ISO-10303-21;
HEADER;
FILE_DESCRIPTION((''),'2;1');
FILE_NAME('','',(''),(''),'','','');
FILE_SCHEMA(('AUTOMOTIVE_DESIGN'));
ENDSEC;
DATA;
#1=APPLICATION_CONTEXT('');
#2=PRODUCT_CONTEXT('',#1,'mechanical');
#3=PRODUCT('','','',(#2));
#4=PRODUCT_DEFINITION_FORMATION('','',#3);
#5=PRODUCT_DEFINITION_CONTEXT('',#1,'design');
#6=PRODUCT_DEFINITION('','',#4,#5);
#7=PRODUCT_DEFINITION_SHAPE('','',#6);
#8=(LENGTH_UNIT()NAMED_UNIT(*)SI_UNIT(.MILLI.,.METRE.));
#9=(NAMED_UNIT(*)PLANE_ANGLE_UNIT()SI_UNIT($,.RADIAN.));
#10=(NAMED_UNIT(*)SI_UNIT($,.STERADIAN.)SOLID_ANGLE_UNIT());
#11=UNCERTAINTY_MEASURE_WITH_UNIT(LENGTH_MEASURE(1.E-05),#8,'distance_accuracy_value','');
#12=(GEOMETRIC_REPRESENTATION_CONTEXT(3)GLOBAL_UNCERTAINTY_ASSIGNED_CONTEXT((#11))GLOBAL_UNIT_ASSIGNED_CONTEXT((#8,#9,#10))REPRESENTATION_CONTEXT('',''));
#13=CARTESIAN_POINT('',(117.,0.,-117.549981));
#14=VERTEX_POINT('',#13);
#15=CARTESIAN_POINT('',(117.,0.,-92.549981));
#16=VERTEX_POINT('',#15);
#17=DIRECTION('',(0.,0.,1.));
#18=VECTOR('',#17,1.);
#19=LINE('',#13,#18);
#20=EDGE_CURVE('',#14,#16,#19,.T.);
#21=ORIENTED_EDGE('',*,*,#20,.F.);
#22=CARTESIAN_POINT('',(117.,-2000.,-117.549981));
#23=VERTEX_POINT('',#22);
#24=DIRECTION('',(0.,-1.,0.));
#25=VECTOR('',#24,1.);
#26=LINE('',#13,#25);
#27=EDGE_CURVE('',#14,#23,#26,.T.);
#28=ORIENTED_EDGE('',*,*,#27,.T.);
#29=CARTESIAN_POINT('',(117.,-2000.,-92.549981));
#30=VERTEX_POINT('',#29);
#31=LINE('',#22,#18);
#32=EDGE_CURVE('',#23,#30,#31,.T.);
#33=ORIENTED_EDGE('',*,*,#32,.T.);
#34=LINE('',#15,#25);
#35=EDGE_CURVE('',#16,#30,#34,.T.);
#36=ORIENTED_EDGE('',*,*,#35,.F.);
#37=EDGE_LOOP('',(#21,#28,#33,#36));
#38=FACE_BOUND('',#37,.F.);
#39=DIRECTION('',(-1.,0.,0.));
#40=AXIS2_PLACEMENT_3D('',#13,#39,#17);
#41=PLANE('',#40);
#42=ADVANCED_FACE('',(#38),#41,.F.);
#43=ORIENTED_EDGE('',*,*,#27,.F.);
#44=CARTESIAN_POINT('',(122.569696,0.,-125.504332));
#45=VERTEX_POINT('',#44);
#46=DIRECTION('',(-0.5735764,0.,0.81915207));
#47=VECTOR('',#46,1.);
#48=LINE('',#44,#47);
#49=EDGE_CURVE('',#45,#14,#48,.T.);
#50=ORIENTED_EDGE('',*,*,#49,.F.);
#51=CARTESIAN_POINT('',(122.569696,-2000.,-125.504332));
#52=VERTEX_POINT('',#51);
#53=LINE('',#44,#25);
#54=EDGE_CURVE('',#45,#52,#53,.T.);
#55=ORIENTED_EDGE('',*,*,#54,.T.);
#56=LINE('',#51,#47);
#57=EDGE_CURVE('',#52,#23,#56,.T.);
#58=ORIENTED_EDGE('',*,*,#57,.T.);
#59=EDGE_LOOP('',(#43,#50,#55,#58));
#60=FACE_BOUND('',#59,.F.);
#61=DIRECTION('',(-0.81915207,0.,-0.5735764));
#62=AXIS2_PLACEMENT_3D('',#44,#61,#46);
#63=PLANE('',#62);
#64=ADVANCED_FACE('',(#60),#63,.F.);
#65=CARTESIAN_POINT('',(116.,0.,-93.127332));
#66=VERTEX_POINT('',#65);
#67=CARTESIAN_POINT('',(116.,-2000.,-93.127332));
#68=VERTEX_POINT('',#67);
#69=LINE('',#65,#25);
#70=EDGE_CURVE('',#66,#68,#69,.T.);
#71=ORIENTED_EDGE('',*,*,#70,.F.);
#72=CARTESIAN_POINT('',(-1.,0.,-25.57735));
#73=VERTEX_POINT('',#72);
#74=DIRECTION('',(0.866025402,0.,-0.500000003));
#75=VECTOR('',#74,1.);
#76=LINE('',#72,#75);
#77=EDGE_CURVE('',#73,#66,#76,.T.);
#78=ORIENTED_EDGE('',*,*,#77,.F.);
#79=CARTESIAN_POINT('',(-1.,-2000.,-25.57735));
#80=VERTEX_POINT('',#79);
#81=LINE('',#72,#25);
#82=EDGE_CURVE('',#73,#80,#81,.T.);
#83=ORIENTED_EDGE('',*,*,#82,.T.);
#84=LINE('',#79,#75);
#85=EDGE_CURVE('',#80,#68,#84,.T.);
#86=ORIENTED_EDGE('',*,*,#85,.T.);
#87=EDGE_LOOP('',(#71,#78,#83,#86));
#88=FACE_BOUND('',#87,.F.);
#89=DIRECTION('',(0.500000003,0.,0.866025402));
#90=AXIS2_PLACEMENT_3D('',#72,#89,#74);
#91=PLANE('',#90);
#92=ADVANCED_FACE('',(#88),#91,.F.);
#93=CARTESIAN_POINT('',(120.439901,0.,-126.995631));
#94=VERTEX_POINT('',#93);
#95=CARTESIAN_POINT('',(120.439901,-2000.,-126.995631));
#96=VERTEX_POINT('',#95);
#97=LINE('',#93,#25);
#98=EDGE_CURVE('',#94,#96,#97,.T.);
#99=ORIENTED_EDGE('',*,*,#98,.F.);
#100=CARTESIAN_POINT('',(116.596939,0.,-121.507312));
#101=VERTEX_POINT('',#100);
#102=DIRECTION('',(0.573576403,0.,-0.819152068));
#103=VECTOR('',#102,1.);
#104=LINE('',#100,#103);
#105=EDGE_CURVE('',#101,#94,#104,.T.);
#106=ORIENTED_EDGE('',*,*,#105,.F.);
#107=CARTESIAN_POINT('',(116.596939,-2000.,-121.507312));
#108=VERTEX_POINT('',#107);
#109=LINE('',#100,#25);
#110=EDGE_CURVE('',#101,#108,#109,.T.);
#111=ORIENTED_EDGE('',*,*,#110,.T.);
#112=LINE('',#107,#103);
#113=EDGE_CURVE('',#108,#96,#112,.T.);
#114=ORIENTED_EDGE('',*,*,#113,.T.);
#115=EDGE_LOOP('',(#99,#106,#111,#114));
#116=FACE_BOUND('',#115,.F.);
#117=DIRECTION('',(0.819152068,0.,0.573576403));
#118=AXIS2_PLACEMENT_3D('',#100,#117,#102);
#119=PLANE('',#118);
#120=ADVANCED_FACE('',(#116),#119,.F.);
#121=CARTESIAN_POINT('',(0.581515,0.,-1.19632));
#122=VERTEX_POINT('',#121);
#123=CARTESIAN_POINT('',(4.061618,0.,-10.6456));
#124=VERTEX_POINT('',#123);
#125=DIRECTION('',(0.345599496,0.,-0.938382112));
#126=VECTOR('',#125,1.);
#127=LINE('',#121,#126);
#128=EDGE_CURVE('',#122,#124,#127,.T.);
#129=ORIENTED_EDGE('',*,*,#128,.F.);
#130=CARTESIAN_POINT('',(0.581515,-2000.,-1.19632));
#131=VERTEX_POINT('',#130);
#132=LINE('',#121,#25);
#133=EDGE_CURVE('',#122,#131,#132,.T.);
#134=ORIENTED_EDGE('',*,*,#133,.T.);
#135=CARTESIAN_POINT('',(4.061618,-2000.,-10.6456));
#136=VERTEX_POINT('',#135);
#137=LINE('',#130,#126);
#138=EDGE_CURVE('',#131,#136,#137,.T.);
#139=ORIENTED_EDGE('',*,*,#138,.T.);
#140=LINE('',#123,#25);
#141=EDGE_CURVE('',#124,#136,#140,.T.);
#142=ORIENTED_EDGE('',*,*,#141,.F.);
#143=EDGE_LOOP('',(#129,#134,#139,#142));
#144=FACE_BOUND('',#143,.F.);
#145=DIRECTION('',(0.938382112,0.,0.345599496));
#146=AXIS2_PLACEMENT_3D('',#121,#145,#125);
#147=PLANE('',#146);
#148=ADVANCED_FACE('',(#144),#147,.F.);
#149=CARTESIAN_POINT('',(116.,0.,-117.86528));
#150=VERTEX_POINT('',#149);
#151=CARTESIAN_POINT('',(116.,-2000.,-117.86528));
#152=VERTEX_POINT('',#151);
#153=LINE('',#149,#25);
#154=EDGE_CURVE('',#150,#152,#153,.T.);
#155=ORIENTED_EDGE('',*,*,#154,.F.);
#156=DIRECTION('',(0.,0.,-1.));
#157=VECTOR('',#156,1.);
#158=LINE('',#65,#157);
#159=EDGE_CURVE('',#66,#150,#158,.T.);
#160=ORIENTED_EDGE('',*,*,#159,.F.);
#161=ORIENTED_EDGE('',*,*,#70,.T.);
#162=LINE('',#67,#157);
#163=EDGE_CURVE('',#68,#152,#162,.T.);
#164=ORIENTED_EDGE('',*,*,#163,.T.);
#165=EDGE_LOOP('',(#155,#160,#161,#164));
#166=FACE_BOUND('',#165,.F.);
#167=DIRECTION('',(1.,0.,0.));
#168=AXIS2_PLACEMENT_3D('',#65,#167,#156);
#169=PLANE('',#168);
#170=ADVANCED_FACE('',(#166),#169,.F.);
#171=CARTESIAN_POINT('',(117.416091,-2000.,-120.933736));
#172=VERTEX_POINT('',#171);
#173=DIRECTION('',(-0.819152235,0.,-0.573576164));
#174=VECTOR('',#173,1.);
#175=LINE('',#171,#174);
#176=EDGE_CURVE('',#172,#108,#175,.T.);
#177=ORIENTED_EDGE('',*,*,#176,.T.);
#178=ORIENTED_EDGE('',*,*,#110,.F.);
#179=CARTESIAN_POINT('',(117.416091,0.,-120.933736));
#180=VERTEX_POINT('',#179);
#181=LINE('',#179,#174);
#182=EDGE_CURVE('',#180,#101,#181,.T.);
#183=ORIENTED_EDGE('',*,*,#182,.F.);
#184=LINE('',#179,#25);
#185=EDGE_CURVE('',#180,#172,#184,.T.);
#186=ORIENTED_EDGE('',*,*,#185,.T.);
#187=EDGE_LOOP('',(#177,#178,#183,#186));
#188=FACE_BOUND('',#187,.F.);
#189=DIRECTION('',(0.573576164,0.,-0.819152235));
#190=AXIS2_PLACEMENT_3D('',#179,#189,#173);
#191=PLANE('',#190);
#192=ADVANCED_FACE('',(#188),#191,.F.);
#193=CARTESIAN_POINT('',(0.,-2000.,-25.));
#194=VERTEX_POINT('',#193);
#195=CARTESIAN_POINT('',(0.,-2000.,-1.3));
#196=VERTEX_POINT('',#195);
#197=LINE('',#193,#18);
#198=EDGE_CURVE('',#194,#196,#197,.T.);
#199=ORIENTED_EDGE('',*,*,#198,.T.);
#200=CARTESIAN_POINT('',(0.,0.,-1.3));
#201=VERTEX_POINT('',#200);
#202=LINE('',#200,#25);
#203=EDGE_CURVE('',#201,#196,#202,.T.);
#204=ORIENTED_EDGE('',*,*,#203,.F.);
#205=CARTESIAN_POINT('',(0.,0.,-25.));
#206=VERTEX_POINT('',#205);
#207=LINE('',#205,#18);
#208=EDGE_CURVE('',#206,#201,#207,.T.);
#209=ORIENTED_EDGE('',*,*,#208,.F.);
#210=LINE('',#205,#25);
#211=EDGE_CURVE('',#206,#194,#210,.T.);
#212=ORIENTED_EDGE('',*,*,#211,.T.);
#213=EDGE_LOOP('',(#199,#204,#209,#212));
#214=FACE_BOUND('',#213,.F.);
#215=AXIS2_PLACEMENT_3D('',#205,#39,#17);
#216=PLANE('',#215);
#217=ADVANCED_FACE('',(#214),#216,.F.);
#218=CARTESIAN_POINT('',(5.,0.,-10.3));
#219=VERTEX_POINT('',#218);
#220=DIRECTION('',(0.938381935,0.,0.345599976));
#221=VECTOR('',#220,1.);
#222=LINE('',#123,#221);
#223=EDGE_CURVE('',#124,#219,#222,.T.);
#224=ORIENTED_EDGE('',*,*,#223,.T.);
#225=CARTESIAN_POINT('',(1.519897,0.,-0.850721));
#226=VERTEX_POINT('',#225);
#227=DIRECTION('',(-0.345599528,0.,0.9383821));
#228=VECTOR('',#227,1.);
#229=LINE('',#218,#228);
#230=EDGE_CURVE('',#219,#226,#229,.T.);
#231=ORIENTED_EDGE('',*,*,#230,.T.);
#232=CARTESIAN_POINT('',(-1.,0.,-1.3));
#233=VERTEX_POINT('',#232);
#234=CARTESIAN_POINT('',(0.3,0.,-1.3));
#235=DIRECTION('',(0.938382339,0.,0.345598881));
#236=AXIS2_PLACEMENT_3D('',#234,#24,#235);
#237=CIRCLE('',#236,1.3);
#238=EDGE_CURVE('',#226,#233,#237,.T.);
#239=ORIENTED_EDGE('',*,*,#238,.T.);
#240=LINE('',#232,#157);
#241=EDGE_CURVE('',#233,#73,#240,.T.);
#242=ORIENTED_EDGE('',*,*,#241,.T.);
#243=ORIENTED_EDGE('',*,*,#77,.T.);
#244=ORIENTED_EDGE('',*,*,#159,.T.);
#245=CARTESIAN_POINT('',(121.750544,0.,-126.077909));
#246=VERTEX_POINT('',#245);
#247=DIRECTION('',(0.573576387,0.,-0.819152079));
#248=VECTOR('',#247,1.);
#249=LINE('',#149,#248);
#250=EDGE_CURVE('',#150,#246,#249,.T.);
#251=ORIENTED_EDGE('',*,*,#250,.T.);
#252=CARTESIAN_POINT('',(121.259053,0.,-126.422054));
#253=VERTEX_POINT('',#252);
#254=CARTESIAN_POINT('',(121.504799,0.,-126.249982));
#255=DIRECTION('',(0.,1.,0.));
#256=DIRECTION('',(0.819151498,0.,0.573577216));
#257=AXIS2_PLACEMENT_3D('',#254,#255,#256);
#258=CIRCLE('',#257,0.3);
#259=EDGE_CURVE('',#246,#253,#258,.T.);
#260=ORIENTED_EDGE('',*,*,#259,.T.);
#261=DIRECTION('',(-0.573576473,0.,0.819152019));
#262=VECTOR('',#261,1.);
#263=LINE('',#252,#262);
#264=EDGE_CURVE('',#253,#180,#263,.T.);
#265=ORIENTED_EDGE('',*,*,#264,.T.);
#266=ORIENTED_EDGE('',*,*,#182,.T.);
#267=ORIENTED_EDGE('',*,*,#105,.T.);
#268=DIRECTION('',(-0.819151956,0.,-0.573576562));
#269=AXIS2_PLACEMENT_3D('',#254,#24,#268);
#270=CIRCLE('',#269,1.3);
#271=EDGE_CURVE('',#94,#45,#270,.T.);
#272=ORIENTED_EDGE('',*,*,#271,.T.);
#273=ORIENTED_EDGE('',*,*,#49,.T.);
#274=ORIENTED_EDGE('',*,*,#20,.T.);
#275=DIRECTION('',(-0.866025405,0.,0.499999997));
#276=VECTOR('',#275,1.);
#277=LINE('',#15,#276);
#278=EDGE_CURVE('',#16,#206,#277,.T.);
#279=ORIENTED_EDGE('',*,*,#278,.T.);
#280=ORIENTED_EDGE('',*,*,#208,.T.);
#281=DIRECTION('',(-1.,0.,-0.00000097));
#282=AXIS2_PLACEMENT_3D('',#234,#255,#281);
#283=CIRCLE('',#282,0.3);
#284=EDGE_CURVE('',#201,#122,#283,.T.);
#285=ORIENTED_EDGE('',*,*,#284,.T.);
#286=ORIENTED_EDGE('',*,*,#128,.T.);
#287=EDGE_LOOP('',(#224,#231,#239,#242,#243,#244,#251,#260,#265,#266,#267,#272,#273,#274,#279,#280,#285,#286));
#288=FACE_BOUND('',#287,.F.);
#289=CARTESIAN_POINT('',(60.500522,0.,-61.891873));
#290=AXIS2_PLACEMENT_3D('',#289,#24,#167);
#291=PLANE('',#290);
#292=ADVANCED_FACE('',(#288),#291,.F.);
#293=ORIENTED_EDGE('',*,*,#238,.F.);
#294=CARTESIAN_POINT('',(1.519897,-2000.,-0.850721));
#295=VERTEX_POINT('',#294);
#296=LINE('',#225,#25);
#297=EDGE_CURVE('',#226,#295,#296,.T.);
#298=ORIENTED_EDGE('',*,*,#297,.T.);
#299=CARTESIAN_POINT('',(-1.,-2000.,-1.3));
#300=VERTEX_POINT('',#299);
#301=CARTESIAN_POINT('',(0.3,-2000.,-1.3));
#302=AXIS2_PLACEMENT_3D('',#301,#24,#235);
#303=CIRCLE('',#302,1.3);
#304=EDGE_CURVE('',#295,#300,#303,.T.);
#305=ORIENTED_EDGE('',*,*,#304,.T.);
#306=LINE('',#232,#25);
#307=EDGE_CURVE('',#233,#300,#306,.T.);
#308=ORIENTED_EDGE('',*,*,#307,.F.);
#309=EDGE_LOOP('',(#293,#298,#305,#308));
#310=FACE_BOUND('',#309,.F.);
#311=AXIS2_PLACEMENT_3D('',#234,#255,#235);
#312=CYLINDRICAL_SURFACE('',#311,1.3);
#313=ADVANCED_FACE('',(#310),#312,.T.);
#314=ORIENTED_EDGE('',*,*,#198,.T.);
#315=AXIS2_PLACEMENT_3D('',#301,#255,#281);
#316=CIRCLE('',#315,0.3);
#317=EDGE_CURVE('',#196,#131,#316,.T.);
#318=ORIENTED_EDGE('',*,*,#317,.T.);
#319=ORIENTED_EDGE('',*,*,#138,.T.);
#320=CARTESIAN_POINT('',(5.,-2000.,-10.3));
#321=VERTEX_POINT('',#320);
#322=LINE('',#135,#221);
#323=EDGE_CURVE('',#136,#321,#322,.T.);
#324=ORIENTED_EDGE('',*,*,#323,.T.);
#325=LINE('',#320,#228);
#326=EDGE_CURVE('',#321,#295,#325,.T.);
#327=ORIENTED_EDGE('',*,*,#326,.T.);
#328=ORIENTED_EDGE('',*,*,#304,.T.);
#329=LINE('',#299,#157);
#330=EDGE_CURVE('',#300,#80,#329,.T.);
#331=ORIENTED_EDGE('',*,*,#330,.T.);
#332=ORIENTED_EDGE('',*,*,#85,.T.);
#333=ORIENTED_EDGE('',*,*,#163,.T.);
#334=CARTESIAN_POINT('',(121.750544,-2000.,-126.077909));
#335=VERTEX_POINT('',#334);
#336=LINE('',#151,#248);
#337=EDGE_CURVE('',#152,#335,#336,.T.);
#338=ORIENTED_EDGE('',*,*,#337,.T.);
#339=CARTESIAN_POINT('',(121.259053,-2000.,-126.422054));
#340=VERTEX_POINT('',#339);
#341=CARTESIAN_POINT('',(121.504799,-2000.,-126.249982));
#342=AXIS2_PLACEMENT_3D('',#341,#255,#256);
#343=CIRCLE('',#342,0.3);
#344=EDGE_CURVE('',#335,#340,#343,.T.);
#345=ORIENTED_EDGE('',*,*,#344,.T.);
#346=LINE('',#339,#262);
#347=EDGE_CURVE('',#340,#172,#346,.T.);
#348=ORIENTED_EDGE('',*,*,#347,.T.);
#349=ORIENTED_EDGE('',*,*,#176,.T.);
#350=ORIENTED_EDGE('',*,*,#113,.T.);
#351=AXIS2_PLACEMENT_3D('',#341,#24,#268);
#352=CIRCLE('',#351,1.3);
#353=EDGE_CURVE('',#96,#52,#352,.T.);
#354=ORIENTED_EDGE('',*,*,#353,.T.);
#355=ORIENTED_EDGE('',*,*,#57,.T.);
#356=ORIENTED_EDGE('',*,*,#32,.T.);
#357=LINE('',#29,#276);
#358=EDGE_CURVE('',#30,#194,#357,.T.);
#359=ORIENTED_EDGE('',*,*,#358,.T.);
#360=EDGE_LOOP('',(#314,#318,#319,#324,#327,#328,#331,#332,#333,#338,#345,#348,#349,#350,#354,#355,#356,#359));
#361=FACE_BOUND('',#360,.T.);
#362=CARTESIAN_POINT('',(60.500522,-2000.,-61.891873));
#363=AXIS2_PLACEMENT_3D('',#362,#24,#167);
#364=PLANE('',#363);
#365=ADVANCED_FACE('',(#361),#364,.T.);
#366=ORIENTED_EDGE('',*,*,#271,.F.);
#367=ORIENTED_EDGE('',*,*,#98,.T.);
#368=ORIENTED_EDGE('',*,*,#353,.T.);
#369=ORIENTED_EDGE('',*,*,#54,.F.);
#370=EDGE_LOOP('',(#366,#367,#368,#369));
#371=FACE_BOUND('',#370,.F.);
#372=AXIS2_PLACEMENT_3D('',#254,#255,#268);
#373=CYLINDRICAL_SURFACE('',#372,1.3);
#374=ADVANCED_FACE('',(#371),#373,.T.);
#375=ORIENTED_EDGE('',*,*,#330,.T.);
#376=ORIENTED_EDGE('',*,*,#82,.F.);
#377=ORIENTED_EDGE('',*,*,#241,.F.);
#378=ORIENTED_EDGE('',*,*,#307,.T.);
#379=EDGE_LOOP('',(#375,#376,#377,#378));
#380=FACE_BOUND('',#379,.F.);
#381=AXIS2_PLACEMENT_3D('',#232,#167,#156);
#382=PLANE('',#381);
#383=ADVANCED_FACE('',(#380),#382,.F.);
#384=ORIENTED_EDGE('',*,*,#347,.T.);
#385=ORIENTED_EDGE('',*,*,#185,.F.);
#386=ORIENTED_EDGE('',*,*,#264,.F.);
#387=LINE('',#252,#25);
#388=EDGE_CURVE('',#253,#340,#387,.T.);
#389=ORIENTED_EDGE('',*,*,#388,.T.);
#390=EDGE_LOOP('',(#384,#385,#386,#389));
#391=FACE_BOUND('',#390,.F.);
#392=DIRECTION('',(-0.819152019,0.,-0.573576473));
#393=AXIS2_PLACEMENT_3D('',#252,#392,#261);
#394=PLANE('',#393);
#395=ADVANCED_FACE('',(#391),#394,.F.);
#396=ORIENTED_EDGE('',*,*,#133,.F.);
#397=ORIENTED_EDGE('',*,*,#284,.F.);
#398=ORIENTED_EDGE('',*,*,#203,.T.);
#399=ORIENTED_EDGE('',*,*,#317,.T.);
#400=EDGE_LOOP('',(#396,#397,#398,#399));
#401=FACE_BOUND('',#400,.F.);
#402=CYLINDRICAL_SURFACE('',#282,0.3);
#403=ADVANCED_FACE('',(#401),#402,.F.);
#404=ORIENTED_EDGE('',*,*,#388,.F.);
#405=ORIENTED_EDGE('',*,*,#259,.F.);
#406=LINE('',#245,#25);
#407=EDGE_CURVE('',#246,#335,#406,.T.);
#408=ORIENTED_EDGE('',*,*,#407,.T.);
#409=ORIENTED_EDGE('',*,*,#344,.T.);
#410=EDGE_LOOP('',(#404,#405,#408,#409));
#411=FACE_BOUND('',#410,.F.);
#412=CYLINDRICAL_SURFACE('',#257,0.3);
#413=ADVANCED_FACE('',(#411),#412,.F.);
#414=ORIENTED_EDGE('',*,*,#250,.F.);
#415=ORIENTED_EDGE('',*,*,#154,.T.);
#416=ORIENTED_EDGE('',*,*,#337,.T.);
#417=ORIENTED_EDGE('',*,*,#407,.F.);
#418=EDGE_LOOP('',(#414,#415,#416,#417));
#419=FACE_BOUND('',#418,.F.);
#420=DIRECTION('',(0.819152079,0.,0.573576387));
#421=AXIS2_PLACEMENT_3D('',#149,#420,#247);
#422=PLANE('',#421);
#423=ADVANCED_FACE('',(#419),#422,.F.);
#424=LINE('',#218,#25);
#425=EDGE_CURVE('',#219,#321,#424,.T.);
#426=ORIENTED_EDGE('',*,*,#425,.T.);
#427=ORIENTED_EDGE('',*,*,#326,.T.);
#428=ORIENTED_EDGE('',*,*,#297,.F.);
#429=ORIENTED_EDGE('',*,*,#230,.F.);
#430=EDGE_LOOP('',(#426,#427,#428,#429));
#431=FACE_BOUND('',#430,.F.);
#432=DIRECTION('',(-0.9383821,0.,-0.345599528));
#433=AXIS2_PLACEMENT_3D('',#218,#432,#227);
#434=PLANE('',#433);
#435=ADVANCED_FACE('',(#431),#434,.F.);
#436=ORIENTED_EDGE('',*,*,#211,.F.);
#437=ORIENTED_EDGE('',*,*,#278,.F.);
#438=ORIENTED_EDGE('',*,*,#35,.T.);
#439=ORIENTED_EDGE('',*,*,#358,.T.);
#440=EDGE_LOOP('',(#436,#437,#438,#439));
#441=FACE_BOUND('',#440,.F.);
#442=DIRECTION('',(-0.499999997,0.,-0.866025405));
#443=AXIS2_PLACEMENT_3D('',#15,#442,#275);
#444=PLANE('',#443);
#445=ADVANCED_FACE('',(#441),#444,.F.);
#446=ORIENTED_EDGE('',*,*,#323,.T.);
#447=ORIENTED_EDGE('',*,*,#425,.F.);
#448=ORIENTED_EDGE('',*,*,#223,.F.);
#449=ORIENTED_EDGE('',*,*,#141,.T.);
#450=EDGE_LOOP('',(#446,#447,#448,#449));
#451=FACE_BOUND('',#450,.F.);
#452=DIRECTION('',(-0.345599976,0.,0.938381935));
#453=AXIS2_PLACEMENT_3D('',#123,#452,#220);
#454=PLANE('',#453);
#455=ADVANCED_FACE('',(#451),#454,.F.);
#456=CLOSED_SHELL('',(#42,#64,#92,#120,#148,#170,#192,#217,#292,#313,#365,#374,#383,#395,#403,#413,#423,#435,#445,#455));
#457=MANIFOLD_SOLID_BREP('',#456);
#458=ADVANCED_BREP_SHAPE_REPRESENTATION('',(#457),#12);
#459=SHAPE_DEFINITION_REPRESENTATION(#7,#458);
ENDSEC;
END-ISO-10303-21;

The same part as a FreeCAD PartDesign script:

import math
import FreeCAD as App
import Part
import Sketcher
from FreeCAD import Vector
Q = App.Units.Quantity

doc = App.newDocument("Part")
body = doc.addObject("PartDesign::Body", "Body")

# Sketch on XZ plane
sketch1 = body.newObject("Sketcher::SketchObject", "Sketch")
sketch1.AttachmentSupport = (doc.getObject("XZ_Plane"), [""])
sketch1.MapMode = "FlatFace"
sketch1.addGeometry([
    Part.LineSegment(Vector(0, -25, 0), Vector(0, -1.3, 0)),  # 0
    Part.ArcOfCircle(Part.Circle(Vector(0.3, -1.3, 0), Vector(0, 0, 1), 0.3), math.radians(20), math.radians(180)),  # 1
    Part.LineSegment(Vector(0.58, -1.2, 0), Vector(4.06, -10.65, 0)),  # 2
    Part.LineSegment(Vector(4.06, -10.65, 0), Vector(5, -10.3, 0)),  # 3
    Part.LineSegment(Vector(5, -10.3, 0), Vector(1.52, -0.85, 0)),  # 4
    Part.ArcOfCircle(Part.Circle(Vector(0.3, -1.3, 0), Vector(0, 0, 1), 1.3), math.radians(20), math.radians(180)),  # 5
    Part.LineSegment(Vector(-1, -1.3, 0), Vector(-1, -25.58, 0)),  # 6
    Part.LineSegment(Vector(-1, -25.58, 0), Vector(116, -93.13, 0)),  # 7
    Part.LineSegment(Vector(116, -93.13, 0), Vector(116, -117.87, 0)),  # 8
    Part.LineSegment(Vector(116, -117.87, 0), Vector(121.75, -126.08, 0)),  # 9
    Part.ArcOfCircle(Part.Circle(Vector(121.5, -126.25, 0), Vector(0, 0, 1), 0.3), math.radians(-145), math.radians(35)),  # 10
    Part.LineSegment(Vector(121.26, -126.42, 0), Vector(117.42, -120.93, 0)),  # 11
    Part.LineSegment(Vector(117.42, -120.93, 0), Vector(116.6, -121.51, 0)),  # 12
    Part.LineSegment(Vector(116.6, -121.51, 0), Vector(120.44, -127, 0)),  # 13
    Part.ArcOfCircle(Part.Circle(Vector(121.5, -126.25, 0), Vector(0, 0, 1), 1.3), math.radians(-145), math.radians(35)),  # 14
    Part.LineSegment(Vector(122.57, -125.5, 0), Vector(117, -117.55, 0)),  # 15
    Part.LineSegment(Vector(117, -117.55, 0), Vector(117, -92.55, 0)),  # 16
    Part.LineSegment(Vector(117, -92.55, 0), Vector(0, -25, 0)),  # 17
], False)
sketch1.addConstraint([
    Sketcher.Constraint("Tangent", 0, 2, 1, 2),
    Sketcher.Constraint("Tangent", 1, 1, 2, 1),
    Sketcher.Constraint("Coincident", 2, 2, 3, 1),
    Sketcher.Constraint("Coincident", 3, 2, 4, 1),
    Sketcher.Constraint("Tangent", 4, 2, 5, 1),
    Sketcher.Constraint("Tangent", 5, 2, 6, 1),
    Sketcher.Constraint("Coincident", 6, 2, 7, 1),
    Sketcher.Constraint("Coincident", 7, 2, 8, 1),
    Sketcher.Constraint("Coincident", 8, 2, 9, 1),
    Sketcher.Constraint("Tangent", 9, 2, 10, 2),
    Sketcher.Constraint("Coincident", 10, 1, 11, 1),
    Sketcher.Constraint("Coincident", 11, 2, 12, 1),
    Sketcher.Constraint("Coincident", 12, 2, 13, 1),
    Sketcher.Constraint("Tangent", 13, 2, 14, 1),
    Sketcher.Constraint("Tangent", 14, 2, 15, 1),
    Sketcher.Constraint("Coincident", 15, 2, 16, 1),
    Sketcher.Constraint("Coincident", 16, 2, 17, 1),
    Sketcher.Constraint("Coincident", 17, 2, 0, 1),
    Sketcher.Constraint("Vertical", 0),
    Sketcher.Constraint("Vertical", 6),
    Sketcher.Constraint("Vertical", 8),
    Sketcher.Constraint("Vertical", 16),
    Sketcher.Constraint("Coincident", 5, 3, 1, 3),
    Sketcher.Constraint("Coincident", 14, 3, 10, 3),
    Sketcher.Constraint("Equal", 1, 10),
    Sketcher.Constraint("Equal", 5, 14),
    Sketcher.Constraint("PointOnObject", 0, 2, -2),
    Sketcher.Constraint("Perpendicular", 2, 3),
    Sketcher.Constraint("Perpendicular", 3, 4),
    Sketcher.Constraint("Parallel", 9, 11),
    Sketcher.Constraint("Perpendicular", 11, 12),
    Sketcher.Constraint("Perpendicular", 12, 13),
    Sketcher.Constraint("Parallel", 13, 15),
    Sketcher.Constraint("Parallel", 7, 17),
    Sketcher.Constraint("Equal", 11, 13),
    Sketcher.Constraint("Equal", 7, 17),
    Sketcher.Constraint("Radius", 1, Q("0.3 mm")),
    Sketcher.Constraint("Radius", 5, Q("1.3 mm")),
    Sketcher.Constraint("DistanceY", 16, 1, 16, 2, Q("25 mm")),
    Sketcher.Constraint("Angle", 7, Q("-30 deg")),
    Sketcher.Constraint("Angle", 9, Q("-55.000003 deg")),
    Sketcher.Constraint("DistanceY", 0, 1, 0, 2, Q("23.7 mm")),
    Sketcher.Constraint("DistanceX", -1, 1, 3, 2, Q("5 mm")),
    Sketcher.Constraint("DistanceX", -1, 1, 7, 2, Q("116 mm")),
    Sketcher.Constraint("DistanceY", 17, 2, -1, 1, Q("25 mm")),
    Sketcher.Constraint("DistanceY", 3, 2, 1, 3, Q("9 mm")),
    Sketcher.Constraint("Distance", 11, Q("6.699999 mm")),
    Sketcher.Constraint("DistanceY", 6, 2, 6, 1, Q("24.27735 mm")),
    Sketcher.Constraint("DistanceX", -1, 1, 10, 3, Q("121.504799 mm")),
])
pad1 = body.newObject("PartDesign::Pad", "Pad")
pad1.Profile = sketch1
pad1.Length = 2000

doc.recompute()
